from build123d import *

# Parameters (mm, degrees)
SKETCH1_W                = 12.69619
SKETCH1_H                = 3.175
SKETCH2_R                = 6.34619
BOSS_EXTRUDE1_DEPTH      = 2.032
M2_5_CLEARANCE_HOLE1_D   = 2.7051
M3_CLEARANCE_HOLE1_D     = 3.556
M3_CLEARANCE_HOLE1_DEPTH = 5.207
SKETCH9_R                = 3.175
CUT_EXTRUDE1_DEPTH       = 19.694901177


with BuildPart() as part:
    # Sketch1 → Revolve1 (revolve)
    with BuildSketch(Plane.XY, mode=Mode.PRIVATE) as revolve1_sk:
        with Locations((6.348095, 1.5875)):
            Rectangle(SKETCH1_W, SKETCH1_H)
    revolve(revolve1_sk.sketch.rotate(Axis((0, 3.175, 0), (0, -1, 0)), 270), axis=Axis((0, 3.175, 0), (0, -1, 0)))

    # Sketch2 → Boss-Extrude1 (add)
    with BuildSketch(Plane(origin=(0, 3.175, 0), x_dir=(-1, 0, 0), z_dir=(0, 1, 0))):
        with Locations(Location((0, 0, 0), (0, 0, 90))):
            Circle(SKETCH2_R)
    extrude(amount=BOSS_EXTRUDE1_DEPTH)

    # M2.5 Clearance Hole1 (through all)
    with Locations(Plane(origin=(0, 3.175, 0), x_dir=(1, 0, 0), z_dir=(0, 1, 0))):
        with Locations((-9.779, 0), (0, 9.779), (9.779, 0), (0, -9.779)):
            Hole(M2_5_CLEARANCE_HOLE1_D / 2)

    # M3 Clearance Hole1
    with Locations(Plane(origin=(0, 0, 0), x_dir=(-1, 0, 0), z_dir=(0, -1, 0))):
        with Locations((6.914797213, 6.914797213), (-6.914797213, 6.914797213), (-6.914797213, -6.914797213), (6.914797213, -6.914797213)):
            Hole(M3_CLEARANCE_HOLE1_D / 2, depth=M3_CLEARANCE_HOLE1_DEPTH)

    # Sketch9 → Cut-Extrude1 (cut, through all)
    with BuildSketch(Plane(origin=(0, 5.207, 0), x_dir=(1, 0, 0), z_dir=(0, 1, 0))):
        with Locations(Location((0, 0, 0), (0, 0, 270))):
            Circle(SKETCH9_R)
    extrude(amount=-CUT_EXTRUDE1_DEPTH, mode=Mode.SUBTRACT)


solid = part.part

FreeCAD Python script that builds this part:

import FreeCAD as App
import Part
import Sketcher
Q = App.Units.Quantity


def add_polygon(sketch, points):
    """Adds a closed chain of lines whose ends are joined by coincident constraints."""
    first, n = sketch.GeometryCount, len(points)
    for a, b in zip(points, points[1:] + points[:1]):
        sketch.addGeometry(Part.LineSegment(App.Vector(*a, 0), App.Vector(*b, 0)), False)
    for i in range(n):
        sketch.addConstraint(Sketcher.Constraint("Coincident", first + i, 2, first + (i + 1) % n, 1))

doc = App.newDocument("Part")
params = doc.addObject("Spreadsheet::Sheet", "Params")
for row, (alias, value) in enumerate([
    ("sketch1_height", "0.125 in"),
    ("revolution_angle", "360 deg"),
    ("pad1_length", "0.08 in"),
    ("hole_diameter", "0.1065 in"),
    ("sketch4_diameter", "0.14 in"),
    ("hole2_diameter", "0.14 in"),
    ("hole2_depth", "0.205 in"),
    ("sketch5_diameter", "0.25 in"),
], start=1):
    params.set(f"A{row}", alias)
    params.set(f"B{row}", "=" + value)
    params.setAlias(f"B{row}", alias)

body = doc.addObject("PartDesign::Body", "Body")

# Sketch on XY plane
sketch1 = doc.addObject("Sketcher::SketchObject", "Sketch")
body.addObject(sketch1)
sketch1.AttachmentSupport = (doc.XY_Plane, [""])
sketch1.MapMode = "FlatFace"
add_polygon(sketch1, [(0, 3.2), (0, 0), (12.7, 0), (12.7, 3.2)])  # lines 0-3
sketch1.addConstraint([
    Sketcher.Constraint("Vertical", 0),
    Sketcher.Constraint("Horizontal", 1),
    Sketcher.Constraint("Vertical", 2),
    Sketcher.Constraint("Horizontal", 3),
    Sketcher.Constraint("Coincident", 0, 2, -1, 1),
    Sketcher.Constraint("DistanceY", 0, 2, 0, 1, Q("0.125 in")),
    Sketcher.Constraint("DistanceX", 1, 1, 1, 2, 12.69619),
])
sketch1.setExpression("Constraints[9]", "Params.sketch1_height")
revolution = doc.addObject("PartDesign::Revolution", "Revolution")
body.addObject(revolution)
revolution.Profile = sketch1
revolution.ReferenceAxis = (sketch1, ["V_Axis"])
revolution.setExpression("Angle", "Params.revolution_angle")

# Sketch on XZ plane
sketch2 = doc.addObject("Sketcher::SketchObject", "Sketch001")
body.addObject(sketch2)
sketch2.AttachmentSupport = (doc.XZ_Plane, [""])
sketch2.MapMode = "FlatFace"
sketch2.AttachmentOffset = App.Placement(App.Vector(0, 0, -0.125 * 25.4), App.Rotation())
sketch2.addGeometry(Part.Circle(App.Vector(0, 0, 0), App.Vector(0, 0, 1), 6), False)
sketch2.addConstraint([
    Sketcher.Constraint("Coincident", 0, 3, -1, 1),
    Sketcher.Constraint("Diameter", 0, Q("0.4997 in")),
])
pad1 = doc.addObject("PartDesign::Pad", "Pad")
body.addObject(pad1)
pad1.Profile = sketch2
pad1.setExpression("Length", "Params.pad1_length")
pad1.Reversed = True

# Sketch on XZ plane
sketch3 = doc.addObject("Sketcher::SketchObject", "Sketch002")
body.addObject(sketch3)
sketch3.AttachmentSupport = (doc.XZ_Plane, [""])
sketch3.MapMode = "FlatFace"
sketch3.AttachmentOffset = App.Placement(App.Vector(0, 0, -0.125 * 25.4), App.Rotation())
sketch3.addGeometry([
    Part.Circle(App.Vector(-9.8, 0, 0), App.Vector(0, 0, 1), 1.4),
    Part.Circle(App.Vector(0, -9.8, 0), App.Vector(0, 0, 1), 1.4),
    Part.Circle(App.Vector(9.8, 0, 0), App.Vector(0, 0, 1), 1.4),
    Part.Circle(App.Vector(0, 9.8, 0), App.Vector(0, 0, 1), 1.4),
], False)
sketch3.addConstraint([
    Sketcher.Constraint("Equal", 0, 1),
    Sketcher.Constraint("Equal", 1, 2),
    Sketcher.Constraint("Equal", 2, 3),
    Sketcher.Constraint("Symmetric", 0, 3, 2, 3, -1, 1),
    Sketcher.Constraint("Symmetric", 1, 3, 3, 3, -1, 1),
    Sketcher.Constraint("PointOnObject", 0, 3, -1),
    Sketcher.Constraint("PointOnObject", 1, 3, -2),
    Sketcher.Constraint("Diameter", 0, Q("0.1065 in")),
    Sketcher.Constraint("DistanceX", 0, 3, 2, 3, Q("0.77 in")),
    Sketcher.Constraint("DistanceY", 1, 3, 3, 3, Q("0.77 in")),
])
doc.recompute()
hole = doc.addObject("PartDesign::Hole", "Hole")
body.addObject(hole)
hole.Profile = sketch3
hole.ThreadType = "None"
hole.setExpression("Diameter", "Params.hole_diameter")
hole.DepthType = "ThroughAll"
hole.Reversed = True

# Sketch on XZ plane
sketch4 = doc.addObject("Sketcher::SketchObject", "Sketch003")
body.addObject(sketch4)
sketch4.AttachmentSupport = (doc.XZ_Plane, [""])
sketch4.MapMode = "FlatFace"
sketch4.addGeometry([
    Part.Circle(App.Vector(-6.9, -6.9, 0), App.Vector(0, 0, 1), 1.8),
    Part.Circle(App.Vector(6.9, -6.9, 0), App.Vector(0, 0, 1), 1.8),
    Part.Circle(App.Vector(6.9, 6.9, 0), App.Vector(0, 0, 1), 1.8),
    Part.Circle(App.Vector(-6.9, 6.9, 0), App.Vector(0, 0, 1), 1.8),
], False)
sketch4.addConstraint([
    Sketcher.Constraint("Equal", 0, 1),
    Sketcher.Constraint("Equal", 1, 2),
    Sketcher.Constraint("Equal", 2, 3),
    Sketcher.Constraint("Symmetric", 0, 3, 2, 3, -1, 1),
    Sketcher.Constraint("Symmetric", 1, 3, 3, 3, -1, 1),
    Sketcher.Constraint("Symmetric", 0, 3, 1, 3, -2),
    Sketcher.Constraint("Diameter", 0, Q("0.14 in")),
    Sketcher.Constraint("DistanceX", 0, 3, -1, 1, 6.914797),
    Sketcher.Constraint("DistanceY", 0, 3, -1, 1, 6.914797),
])
sketch4.setExpression("Constraints[6]", "Params.sketch4_diameter")
doc.recompute()
hole2 = doc.addObject("PartDesign::Hole", "Hole001")
body.addObject(hole2)
hole2.Profile = sketch4
hole2.ThreadType = "None"
hole2.setExpression("Diameter", "Params.hole2_diameter")
hole2.DepthType = "Dimension"
hole2.setExpression("Depth", "Params.hole2_depth")
hole2.DrillPoint = "Flat"

# Sketch on XZ plane
sketch5 = doc.addObject("Sketcher::SketchObject", "Sketch004")
body.addObject(sketch5)
sketch5.AttachmentSupport = (doc.XZ_Plane, [""])
sketch5.MapMode = "FlatFace"
sketch5.AttachmentOffset = App.Placement(App.Vector(0, 0, -0.205 * 25.4), App.Rotation())
sketch5.addGeometry(Part.Circle(App.Vector(0, 0, 0), App.Vector(0, 0, 1), 3.2), False)
sketch5.addConstraint([
    Sketcher.Constraint("Coincident", 0, 3, -1, 1),
    Sketcher.Constraint("Diameter", 0, Q("0.25 in")),
])
sketch5.setExpression("Constraints[1]", "Params.sketch5_diameter")
pocket1 = doc.addObject("PartDesign::Pocket", "Pocket")
body.addObject(pocket1)
pocket1.Profile = sketch5
pocket1.Type = "ThroughAll"
pocket1.Reversed = True

doc.recompute()
